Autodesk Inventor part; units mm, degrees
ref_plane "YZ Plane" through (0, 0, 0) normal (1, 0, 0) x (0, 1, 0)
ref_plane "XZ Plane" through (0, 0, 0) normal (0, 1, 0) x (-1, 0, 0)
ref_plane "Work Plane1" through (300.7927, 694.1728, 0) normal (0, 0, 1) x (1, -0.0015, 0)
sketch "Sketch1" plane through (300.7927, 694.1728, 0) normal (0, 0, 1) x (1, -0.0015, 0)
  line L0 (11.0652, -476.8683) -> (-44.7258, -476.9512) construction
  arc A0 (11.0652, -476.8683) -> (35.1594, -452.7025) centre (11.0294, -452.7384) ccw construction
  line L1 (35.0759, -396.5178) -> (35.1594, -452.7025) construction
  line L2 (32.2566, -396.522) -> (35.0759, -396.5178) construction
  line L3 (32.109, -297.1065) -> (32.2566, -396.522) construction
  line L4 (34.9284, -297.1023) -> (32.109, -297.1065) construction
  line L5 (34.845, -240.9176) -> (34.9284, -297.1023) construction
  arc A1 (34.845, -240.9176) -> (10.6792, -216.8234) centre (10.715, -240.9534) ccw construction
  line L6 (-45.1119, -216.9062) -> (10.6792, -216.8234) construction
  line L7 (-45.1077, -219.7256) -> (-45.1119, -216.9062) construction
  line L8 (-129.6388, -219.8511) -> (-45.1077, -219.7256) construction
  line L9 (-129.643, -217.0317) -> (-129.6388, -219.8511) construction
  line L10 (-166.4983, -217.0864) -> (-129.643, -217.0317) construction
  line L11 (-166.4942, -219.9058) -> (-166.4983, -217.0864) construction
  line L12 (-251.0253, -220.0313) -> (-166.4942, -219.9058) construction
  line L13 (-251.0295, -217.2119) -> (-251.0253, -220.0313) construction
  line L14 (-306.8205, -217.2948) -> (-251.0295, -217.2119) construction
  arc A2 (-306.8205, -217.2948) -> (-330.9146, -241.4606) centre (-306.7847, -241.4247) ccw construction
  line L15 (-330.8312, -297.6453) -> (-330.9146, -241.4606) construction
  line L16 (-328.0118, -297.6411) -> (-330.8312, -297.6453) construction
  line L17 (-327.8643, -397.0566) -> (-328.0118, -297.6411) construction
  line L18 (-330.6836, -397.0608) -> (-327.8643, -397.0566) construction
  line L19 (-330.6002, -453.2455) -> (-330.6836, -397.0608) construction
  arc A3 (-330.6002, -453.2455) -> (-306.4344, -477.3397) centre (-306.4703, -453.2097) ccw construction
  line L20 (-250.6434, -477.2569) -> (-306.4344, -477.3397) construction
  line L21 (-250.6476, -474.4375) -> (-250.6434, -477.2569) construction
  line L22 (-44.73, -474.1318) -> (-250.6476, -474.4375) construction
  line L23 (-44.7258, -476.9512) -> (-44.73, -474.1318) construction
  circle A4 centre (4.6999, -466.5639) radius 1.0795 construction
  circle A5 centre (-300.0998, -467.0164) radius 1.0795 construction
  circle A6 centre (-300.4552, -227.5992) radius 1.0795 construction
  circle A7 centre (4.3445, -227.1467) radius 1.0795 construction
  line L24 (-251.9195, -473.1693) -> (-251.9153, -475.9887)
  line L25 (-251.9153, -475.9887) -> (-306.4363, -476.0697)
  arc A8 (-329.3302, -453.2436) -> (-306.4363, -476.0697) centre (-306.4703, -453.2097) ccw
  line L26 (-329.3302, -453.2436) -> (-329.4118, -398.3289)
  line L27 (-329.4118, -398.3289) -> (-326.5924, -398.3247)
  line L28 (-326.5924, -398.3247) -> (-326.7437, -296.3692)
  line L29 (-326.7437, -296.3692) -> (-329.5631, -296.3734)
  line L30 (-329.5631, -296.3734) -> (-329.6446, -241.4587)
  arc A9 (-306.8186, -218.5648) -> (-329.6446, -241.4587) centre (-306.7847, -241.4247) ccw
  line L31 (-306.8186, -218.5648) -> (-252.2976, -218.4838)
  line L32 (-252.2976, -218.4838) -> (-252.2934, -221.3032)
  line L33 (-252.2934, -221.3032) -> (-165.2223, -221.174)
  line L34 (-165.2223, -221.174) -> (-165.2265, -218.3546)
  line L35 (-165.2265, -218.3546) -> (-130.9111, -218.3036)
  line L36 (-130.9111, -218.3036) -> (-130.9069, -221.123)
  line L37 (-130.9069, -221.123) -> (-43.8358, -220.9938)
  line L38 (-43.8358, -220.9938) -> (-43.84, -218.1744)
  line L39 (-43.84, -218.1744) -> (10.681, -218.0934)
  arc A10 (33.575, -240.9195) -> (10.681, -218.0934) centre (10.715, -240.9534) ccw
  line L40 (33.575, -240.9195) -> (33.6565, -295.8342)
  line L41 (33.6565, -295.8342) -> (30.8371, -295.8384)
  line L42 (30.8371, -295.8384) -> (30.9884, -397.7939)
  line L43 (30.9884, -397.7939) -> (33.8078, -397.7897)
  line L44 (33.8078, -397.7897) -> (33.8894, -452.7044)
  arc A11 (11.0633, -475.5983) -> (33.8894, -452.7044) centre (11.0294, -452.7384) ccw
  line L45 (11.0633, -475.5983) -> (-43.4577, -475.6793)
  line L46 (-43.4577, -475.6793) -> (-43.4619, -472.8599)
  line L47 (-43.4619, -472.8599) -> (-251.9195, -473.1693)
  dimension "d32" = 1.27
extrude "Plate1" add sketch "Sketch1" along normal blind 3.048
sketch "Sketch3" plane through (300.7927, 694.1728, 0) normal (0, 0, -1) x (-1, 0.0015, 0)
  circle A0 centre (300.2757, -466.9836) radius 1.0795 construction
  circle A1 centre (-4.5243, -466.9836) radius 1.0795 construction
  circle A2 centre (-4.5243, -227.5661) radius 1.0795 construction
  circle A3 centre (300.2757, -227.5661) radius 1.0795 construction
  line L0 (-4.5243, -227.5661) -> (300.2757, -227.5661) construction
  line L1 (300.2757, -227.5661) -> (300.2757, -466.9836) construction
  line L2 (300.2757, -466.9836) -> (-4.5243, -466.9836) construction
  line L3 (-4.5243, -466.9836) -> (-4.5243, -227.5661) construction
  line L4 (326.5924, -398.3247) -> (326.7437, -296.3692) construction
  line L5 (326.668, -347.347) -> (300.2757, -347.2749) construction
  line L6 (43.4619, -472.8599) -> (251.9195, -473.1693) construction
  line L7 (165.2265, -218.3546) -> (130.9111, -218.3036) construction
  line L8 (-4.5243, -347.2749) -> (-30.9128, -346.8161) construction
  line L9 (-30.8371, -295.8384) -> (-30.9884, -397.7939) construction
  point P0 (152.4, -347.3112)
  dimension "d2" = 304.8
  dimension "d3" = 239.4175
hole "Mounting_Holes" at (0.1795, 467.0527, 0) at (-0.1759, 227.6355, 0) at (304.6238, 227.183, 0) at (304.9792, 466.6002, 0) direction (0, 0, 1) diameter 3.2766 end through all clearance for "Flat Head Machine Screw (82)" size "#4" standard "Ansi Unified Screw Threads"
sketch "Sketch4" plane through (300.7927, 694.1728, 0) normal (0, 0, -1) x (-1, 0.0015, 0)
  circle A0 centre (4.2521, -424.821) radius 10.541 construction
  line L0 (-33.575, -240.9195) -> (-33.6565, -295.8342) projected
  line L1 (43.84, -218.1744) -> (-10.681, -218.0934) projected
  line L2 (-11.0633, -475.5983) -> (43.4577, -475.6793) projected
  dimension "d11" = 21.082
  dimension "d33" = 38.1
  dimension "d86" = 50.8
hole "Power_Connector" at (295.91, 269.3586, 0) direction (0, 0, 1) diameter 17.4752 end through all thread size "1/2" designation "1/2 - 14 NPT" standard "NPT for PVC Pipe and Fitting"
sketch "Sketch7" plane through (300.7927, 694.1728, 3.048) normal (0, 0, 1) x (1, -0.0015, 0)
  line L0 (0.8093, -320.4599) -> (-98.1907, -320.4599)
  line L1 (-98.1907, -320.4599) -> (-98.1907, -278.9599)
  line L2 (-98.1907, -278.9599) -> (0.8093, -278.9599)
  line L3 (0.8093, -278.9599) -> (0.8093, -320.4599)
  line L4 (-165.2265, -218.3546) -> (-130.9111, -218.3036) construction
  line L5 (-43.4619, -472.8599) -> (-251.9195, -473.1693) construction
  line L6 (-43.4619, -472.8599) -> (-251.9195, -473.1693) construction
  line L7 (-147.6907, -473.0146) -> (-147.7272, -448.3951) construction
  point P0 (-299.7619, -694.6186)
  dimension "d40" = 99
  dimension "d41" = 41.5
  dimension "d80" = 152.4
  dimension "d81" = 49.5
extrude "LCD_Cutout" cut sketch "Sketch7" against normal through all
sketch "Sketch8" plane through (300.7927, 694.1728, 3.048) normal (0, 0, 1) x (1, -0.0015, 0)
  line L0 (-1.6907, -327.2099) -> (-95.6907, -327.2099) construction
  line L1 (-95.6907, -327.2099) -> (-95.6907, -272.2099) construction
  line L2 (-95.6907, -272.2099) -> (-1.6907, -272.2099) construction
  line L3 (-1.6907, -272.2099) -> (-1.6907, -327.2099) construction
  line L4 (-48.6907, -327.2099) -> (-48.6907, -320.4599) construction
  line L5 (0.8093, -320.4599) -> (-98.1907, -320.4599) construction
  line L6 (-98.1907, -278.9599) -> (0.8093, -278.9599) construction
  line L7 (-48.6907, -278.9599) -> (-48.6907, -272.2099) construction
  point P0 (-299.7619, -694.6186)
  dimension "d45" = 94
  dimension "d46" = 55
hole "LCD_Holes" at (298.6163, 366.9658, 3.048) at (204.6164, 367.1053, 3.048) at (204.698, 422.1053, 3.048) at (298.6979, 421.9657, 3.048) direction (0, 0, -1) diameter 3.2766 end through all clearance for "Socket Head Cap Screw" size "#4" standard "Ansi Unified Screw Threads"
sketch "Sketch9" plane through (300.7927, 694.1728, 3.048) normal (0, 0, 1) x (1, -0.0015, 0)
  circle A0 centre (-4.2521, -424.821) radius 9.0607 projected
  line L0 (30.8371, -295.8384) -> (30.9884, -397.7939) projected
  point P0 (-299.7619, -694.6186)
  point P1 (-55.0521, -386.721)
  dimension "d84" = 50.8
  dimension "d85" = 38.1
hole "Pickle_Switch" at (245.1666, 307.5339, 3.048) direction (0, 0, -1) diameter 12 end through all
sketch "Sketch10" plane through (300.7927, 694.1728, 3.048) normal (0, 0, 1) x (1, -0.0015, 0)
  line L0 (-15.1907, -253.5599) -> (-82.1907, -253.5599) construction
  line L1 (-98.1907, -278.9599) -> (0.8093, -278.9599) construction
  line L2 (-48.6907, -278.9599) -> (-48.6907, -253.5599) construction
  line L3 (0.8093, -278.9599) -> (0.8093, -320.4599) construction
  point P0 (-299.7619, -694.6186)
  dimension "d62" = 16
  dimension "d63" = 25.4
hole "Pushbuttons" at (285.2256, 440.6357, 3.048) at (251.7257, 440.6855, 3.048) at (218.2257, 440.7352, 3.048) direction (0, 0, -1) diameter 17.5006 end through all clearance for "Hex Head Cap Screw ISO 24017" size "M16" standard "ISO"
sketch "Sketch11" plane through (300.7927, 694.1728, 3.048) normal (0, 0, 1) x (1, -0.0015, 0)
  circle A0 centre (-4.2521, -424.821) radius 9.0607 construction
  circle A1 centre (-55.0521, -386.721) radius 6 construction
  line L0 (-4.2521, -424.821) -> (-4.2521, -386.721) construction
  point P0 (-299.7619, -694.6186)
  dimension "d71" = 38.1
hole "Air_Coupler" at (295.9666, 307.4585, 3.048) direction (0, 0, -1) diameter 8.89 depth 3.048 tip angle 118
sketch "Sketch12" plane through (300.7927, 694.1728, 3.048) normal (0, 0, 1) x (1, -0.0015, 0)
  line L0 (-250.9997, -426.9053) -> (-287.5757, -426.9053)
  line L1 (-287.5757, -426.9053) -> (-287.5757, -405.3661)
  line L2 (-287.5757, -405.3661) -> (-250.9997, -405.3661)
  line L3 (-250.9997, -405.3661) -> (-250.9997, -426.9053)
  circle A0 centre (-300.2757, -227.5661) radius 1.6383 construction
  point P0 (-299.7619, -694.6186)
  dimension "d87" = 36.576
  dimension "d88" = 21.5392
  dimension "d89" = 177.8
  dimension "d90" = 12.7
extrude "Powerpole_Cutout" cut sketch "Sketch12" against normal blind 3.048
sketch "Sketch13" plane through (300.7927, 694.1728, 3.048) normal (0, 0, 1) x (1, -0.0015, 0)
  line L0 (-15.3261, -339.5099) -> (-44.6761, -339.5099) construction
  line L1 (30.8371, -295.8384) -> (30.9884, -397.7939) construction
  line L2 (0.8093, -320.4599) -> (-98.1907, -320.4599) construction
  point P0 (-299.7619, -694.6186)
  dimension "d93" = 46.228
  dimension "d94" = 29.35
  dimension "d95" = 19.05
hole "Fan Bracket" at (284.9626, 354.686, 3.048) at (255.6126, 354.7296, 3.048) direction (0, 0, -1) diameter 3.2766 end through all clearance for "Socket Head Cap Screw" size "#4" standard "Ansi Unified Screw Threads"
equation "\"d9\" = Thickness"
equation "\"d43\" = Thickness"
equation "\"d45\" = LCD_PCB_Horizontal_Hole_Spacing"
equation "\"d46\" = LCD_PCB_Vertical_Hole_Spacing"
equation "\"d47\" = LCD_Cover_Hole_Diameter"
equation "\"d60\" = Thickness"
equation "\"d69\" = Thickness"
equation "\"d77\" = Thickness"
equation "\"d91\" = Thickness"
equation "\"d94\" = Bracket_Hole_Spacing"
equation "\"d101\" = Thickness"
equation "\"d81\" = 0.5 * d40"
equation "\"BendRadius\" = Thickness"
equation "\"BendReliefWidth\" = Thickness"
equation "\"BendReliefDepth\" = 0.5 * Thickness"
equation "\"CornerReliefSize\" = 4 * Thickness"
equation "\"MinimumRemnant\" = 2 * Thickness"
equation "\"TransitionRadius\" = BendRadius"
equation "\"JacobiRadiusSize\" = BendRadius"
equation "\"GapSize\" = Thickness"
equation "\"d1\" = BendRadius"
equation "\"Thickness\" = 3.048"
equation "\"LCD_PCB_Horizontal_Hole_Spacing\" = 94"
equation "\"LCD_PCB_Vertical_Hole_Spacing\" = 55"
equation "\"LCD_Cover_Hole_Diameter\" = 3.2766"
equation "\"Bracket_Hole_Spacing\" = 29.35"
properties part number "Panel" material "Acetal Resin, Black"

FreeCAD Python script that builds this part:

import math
import FreeCAD as App
import Part
import Sketcher

V = App.Vector
Q = App.Units.Quantity

doc = App.newDocument("Part")
body = doc.addObject("PartDesign::Body", "Body")

sketch1 = body.newObject("Sketcher::SketchObject", "Sketch")
sketch1.AttachmentSupport = (doc.getObject("XY_Plane"), [""])
sketch1.MapMode = "FlatFace"
sketch1.addGeometry([
    Part.LineSegment(V(48.163701, 218.562508, 0), V(48.16373, 221.381911, 0)),
    Part.LineSegment(V(48.16373, 221.381911, 0), V(256.62156, 221.378625, 0)),
    Part.LineSegment(V(256.62156, 221.378625, 0), V(256.621531, 218.559222, 0)),
    Part.LineSegment(V(256.621531, 218.559222, 0), V(311.142591, 218.55844, 0)),
    Part.ArcOfCircle(Part.Circle(V(311.142981, 241.418365, 0), V(0, 0, 1), 22.859925), math.radians(-90.000977), math.radians(-0.000727)),
    Part.LineSegment(V(334.003006, 241.418075, 0), V(334.003778, 296.332836, 0)),
    Part.LineSegment(V(334.003778, 296.332836, 0), V(331.184375, 296.332865, 0)),
    Part.LineSegment(V(331.184375, 296.332865, 0), V(331.186008, 398.288477, 0)),
    Part.LineSegment(V(331.186008, 398.288477, 0), V(334.005411, 398.288448, 0)),
    Part.LineSegment(V(334.005411, 398.288448, 0), V(334.006283, 453.203209, 0)),
    Part.ArcOfCircle(Part.Circle(V(311.146258, 453.203599, 0), V(0, 0, 1), 22.860025), math.radians(-0.000977), math.radians(89.999273)),
    Part.LineSegment(V(311.146548, 476.063624, 0), V(256.625488, 476.064405, 0)),
    Part.LineSegment(V(256.625488, 476.064405, 0), V(256.625459, 473.245002, 0)),
    Part.LineSegment(V(256.625459, 473.245002, 0), V(169.554263, 473.246409, 0)),
    Part.LineSegment(V(169.554263, 473.246409, 0), V(169.554292, 476.065812, 0)),
    Part.LineSegment(V(169.554292, 476.065812, 0), V(135.238854, 476.066285, 0)),
    Part.LineSegment(V(135.238854, 476.066285, 0), V(135.238825, 473.246882, 0)),
    Part.LineSegment(V(135.238825, 473.246882, 0), V(48.167629, 473.248289, 0)),
    Part.LineSegment(V(48.167629, 473.248289, 0), V(48.167659, 476.067692, 0)),
    Part.LineSegment(V(48.167659, 476.067692, 0), V(-6.353402, 476.068473, 0)),
    Part.ArcOfCircle(Part.Circle(V(-6.353791, 453.208548, 0), V(0, 0, 1), 22.859925), math.radians(89.999023), math.radians(179.999274)),
    Part.LineSegment(V(-29.213717, 453.208838, 0), V(-29.214589, 398.294077, 0)),
    Part.LineSegment(V(-29.214589, 398.294077, 0), V(-26.395186, 398.294048, 0)),
    Part.LineSegment(V(-26.395186, 398.294048, 0), V(-26.396819, 296.338436, 0)),
    Part.LineSegment(V(-26.396819, 296.338436, 0), V(-29.216222, 296.338465, 0)),
    Part.LineSegment(V(-29.216222, 296.338465, 0), V(-29.216994, 241.423705, 0)),
    Part.ArcOfCircle(Part.Circle(V(-6.357069, 241.423315, 0), V(0, 0, 1), 22.859925), math.radians(179.999023), math.radians(269.999273)),
    Part.LineSegment(V(-6.357359, 218.563289, 0), V(48.163701, 218.562508, 0)),
], False)
sketch1.addConstraint([
    Sketcher.Constraint("Coincident", 0, 2, 1, 1),
    Sketcher.Constraint("Coincident", 1, 2, 2, 1),
    Sketcher.Constraint("Coincident", 2, 2, 3, 1),
    Sketcher.Constraint("Tangent", 3, 2, 4, 1),
    Sketcher.Constraint("Tangent", 4, 2, 5, 1),
    Sketcher.Constraint("Coincident", 5, 2, 6, 1),
    Sketcher.Constraint("Coincident", 6, 2, 7, 1),
    Sketcher.Constraint("Coincident", 7, 2, 8, 1),
    Sketcher.Constraint("Coincident", 8, 2, 9, 1),
    Sketcher.Constraint("Tangent", 9, 2, 10, 1),
    Sketcher.Constraint("Tangent", 10, 2, 11, 1),
    Sketcher.Constraint("Coincident", 11, 2, 12, 1),
    Sketcher.Constraint("Coincident", 12, 2, 13, 1),
    Sketcher.Constraint("Coincident", 13, 2, 14, 1),
    Sketcher.Constraint("Coincident", 14, 2, 15, 1),
    Sketcher.Constraint("Coincident", 15, 2, 16, 1),
    Sketcher.Constraint("Coincident", 16, 2, 17, 1),
    Sketcher.Constraint("Coincident", 17, 2, 18, 1),
    Sketcher.Constraint("Coincident", 18, 2, 19, 1),
    Sketcher.Constraint("Tangent", 19, 2, 20, 1),
    Sketcher.Constraint("Tangent", 20, 2, 21, 1),
    Sketcher.Constraint("Coincident", 21, 2, 22, 1),
    Sketcher.Constraint("Coincident", 22, 2, 23, 1),
    Sketcher.Constraint("Coincident", 23, 2, 24, 1),
    Sketcher.Constraint("Coincident", 24, 2, 25, 1),
    Sketcher.Constraint("Tangent", 25, 2, 26, 1),
    Sketcher.Constraint("Tangent", 26, 2, 27, 1),
    Sketcher.Constraint("Coincident", 27, 2, 0, 1),
    Sketcher.Constraint("Vertical", 0),
    Sketcher.Constraint("Vertical", 2),
    Sketcher.Constraint("Horizontal", 6),
    Sketcher.Constraint("Horizontal", 8),
    Sketcher.Constraint("Vertical", 12),
    Sketcher.Constraint("Vertical", 14),
    Sketcher.Constraint("Vertical", 16),
    Sketcher.Constraint("Vertical", 18),
    Sketcher.Constraint("Horizontal", 22),
    Sketcher.Constraint("Horizontal", 24),
    Sketcher.Constraint("Equal", 4, 10),
    Sketcher.Constraint("Equal", 10, 20),
    Sketcher.Constraint("Equal", 20, 26),
    Sketcher.Constraint("Parallel", 1, 3),
    Sketcher.Constraint("Perpendicular", 3, 5),
    Sketcher.Constraint("Parallel", 5, 7),
    Sketcher.Constraint("Parallel", 7, 9),
    Sketcher.Constraint("Perpendicular", 9, 11),
    Sketcher.Constraint("Parallel", 11, 13),
    Sketcher.Constraint("Parallel", 13, 15),
    Sketcher.Constraint("Parallel", 15, 17),
    Sketcher.Constraint("Parallel", 17, 19),
    Sketcher.Constraint("Perpendicular", 19, 21),
    Sketcher.Constraint("Parallel", 21, 23),
    Sketcher.Constraint("Parallel", 23, 25),
    Sketcher.Constraint("Perpendicular", 25, 27),
    Sketcher.Constraint("Equal", 6, 8),
    Sketcher.Constraint("Equal", 8, 22),
    Sketcher.Constraint("Equal", 22, 24),
    Sketcher.Constraint("Equal", 24, 0),
    Sketcher.Constraint("Equal", 0, 2),
    Sketcher.Constraint("Equal", 2, 12),
    Sketcher.Constraint("Equal", 12, 14),
    Sketcher.Constraint("Equal", 14, 16),
    Sketcher.Constraint("Equal", 16, 18),
    Sketcher.Constraint("Equal", 5, 9),
    Sketcher.Constraint("Equal", 3, 11),
    Sketcher.Constraint("Equal", 13, 17),
    Sketcher.Constraint("Equal", 11, 19),
    Sketcher.Constraint("Equal", 9, 21),
    Sketcher.Constraint("Equal", 7, 23),
    Sketcher.Constraint("Equal", 19, 27),
    Sketcher.Constraint("Radius", 4, Q("0.9 in")),
    Sketcher.Constraint("Angle", 1, Q("-0.001 deg")),
    Sketcher.Constraint("DistanceX", 20, 3, 10, 3, Q("12.5 in")),
    Sketcher.Constraint("DistanceX", 6, 2, 6, 1, Q("0.111 in")),
    Sketcher.Constraint("Distance", 1, Q("8.207 in")),
    Sketcher.Constraint("Distance", 5, Q("2.162 in")),
    Sketcher.Constraint("Distance", 7, Q("4.014 in")),
    Sketcher.Constraint("Distance", 13, Q("3.428 in")),
    Sketcher.Constraint("DistanceX", -1, 1, 0, 2, Q("1.8962 in")),
    Sketcher.Constraint("DistanceY", -1, 1, 1, 2, Q("8.7157 in")),
])
pad1 = body.newObject("PartDesign::Pad", "Pad")
pad1.Profile = sketch1
pad1.Length = Q("0.12 in")

sketch2 = body.newObject("Sketcher::SketchObject", "Sketch001")
sketch2.AttachmentSupport = (doc.getObject("XY_Plane"), [""])
sketch2.MapMode = "FlatFace"
sketch2.addGeometry([
    Part.Circle(V(0.1795, 467.0527, 0), V(0, 0, 1), 1.6383),
    Part.Circle(V(-0.1759, 227.6355, 0), V(0, 0, 1), 1.6383),
    Part.Circle(V(304.6238, 227.183, 0), V(0, 0, 1), 1.6383),
    Part.Circle(V(304.9792, 466.6002, 0), V(0, 0, 1), 1.6383),
], False)
sketch2.addConstraint([
    Sketcher.Constraint("Equal", 0, 1),
    Sketcher.Constraint("Equal", 1, 2),
    Sketcher.Constraint("Equal", 2, 3),
    Sketcher.Constraint("Diameter", 0, Q("0.129 in")),
    Sketcher.Constraint("DistanceX", 1, 3, 2, 3, Q("12 in")),
    Sketcher.Constraint("DistanceX", 0, 3, 3, 3, Q("12 in")),
    Sketcher.Constraint("DistanceX", 1, 3, 0, 3, Q("0.014 in")),
    Sketcher.Constraint("DistanceY", -1, 1, 0, 3, Q("18.3879 in")),
    Sketcher.Constraint("DistanceY", 2, 3, 0, 3, Q("9.4437 in")),
    Sketcher.Constraint("DistanceX", -1, 1, 0, 3, Q("0.1795 mm")),
    Sketcher.Constraint("DistanceY", -1, 1, 1, 3, Q("227.6355 mm")),
    Sketcher.Constraint("DistanceY", -1, 1, 3, 3, Q("466.6002 mm")),
])
doc.recompute()
hole = body.newObject("PartDesign::Hole", "Hole")
hole.Profile = sketch2
hole.ThreadType = "None"
hole.Diameter = Q("0.129 in")
hole.DepthType = "ThroughAll"
hole.Reversed = True

sketch3 = body.newObject("Sketcher::SketchObject", "Sketch002")
sketch3.AttachmentSupport = (doc.getObject("XY_Plane"), [""])
sketch3.MapMode = "FlatFace"
sketch3.addGeometry(Part.Circle(V(295.91, 269.3586, 0), V(0, 0, 1), 8.7376), False)
sketch3.addConstraint([
    Sketcher.Constraint("Diameter", 0, Q("0.688 in")),
    Sketcher.Constraint("DistanceX", -1, 1, 0, 3, Q("11.65 in")),
    Sketcher.Constraint("DistanceY", -1, 1, 0, 3, Q("269.3586 mm")),
])
doc.recompute()
hole2 = body.newObject("PartDesign::Hole", "Hole001")
hole2.Profile = sketch3
hole2.ThreadType = "None"
hole2.Diameter = Q("0.688 in")
hole2.DepthType = "ThroughAll"
hole2.Reversed = True

sketch4 = body.newObject("Sketcher::SketchObject", "Sketch003")
sketch4.AttachmentSupport = (doc.getObject("XY_Plane"), [""])
sketch4.MapMode = "FlatFace"
sketch4.AttachmentOffset = App.Placement(V(0, 0, 0.12 * 25.4), App.Rotation())
sketch4.addGeometry([
    Part.LineSegment(V(202.121421, 373.860546, 0), V(301.12131, 373.712047, 0)),
    Part.LineSegment(V(301.12131, 373.712047, 0), V(301.18356, 415.212, 0)),
    Part.LineSegment(V(301.18356, 415.212, 0), V(202.183671, 415.3605, 0)),
    Part.LineSegment(V(202.183671, 415.3605, 0), V(202.121421, 373.860546, 0)),
], False)
sketch4.addConstraint([
    Sketcher.Constraint("Coincident", 0, 2, 1, 1),
    Sketcher.Constraint("Coincident", 1, 2, 2, 1),
    Sketcher.Constraint("Coincident", 2, 2, 3, 1),
    Sketcher.Constraint("Coincident", 3, 2, 0, 1),
    Sketcher.Constraint("Perpendicular", 0, 1),
    Sketcher.Constraint("Perpendicular", 1, 2),
    Sketcher.Constraint("Perpendicular", 2, 3),
    Sketcher.Constraint("Distance", 0, Q("99 mm")),
    Sketcher.Constraint("Distance", 1, Q("41.5 mm")),
    Sketcher.Constraint("DistanceY", 3, 2, 1, 2, Q("1.628 in")),
    Sketcher.Constraint("DistanceX", -1, 1, 0, 2, Q("301.1213 mm")),
    Sketcher.Constraint("DistanceY", -1, 1, 0, 2, Q("373.712 mm")),
])
pocket1 = body.newObject("PartDesign::Pocket", "Pocket")
pocket1.Profile = sketch4
pocket1.Type = "ThroughAll"

sketch5 = body.newObject("Sketcher::SketchObject", "Sketch004")
sketch5.AttachmentSupport = (doc.getObject("XY_Plane"), [""])
sketch5.MapMode = "FlatFace"
sketch5.AttachmentOffset = App.Placement(V(0, 0, 0.12 * 25.4), App.Rotation())
sketch5.addGeometry([
    Part.Circle(V(298.6163, 366.9658, 0), V(0, 0, 1), 1.6383),
    Part.Circle(V(204.6164, 367.1053, 0), V(0, 0, 1), 1.6383),
    Part.Circle(V(204.698, 422.1053, 0), V(0, 0, 1), 1.6383),
    Part.Circle(V(298.6979, 421.9657, 0), V(0, 0, 1), 1.6383),
], False)
sketch5.addConstraint([
    Sketcher.Constraint("Equal", 0, 1),
    Sketcher.Constraint("Equal", 1, 2),
    Sketcher.Constraint("Equal", 2, 3),
    Sketcher.Constraint("Diameter", 0, Q("0.129 in")),
    Sketcher.Constraint("DistanceX", 1, 3, 3, 3, Q("3.704 in")),
    Sketcher.Constraint("DistanceY", 0, 3, 1, 3, Q("0.0055 in")),
    Sketcher.Constraint("DistanceY", 3, 3, 2, 3, Q("0.0055 in")),
    Sketcher.Constraint("DistanceX", -1, 1, 0, 3, Q("298.6163 mm")),
    Sketcher.Constraint("DistanceY", -1, 1, 0, 3, Q("366.9658 mm")),
    Sketcher.Constraint("DistanceX", -1, 1, 1, 3, Q("204.6164 mm")),
    Sketcher.Constraint("DistanceX", -1, 1, 2, 3, Q("204.698 mm")),
    Sketcher.Constraint("DistanceY", -1, 1, 2, 3, Q("422.1053 mm")),
])
doc.recompute()
hole3 = body.newObject("PartDesign::Hole", "Hole002")
hole3.Profile = sketch5
hole3.ThreadType = "None"
hole3.Diameter = Q("0.129 in")
hole3.DepthType = "ThroughAll"

sketch6 = body.newObject("Sketcher::SketchObject", "Sketch005")
sketch6.AttachmentSupport = (doc.getObject("XY_Plane"), [""])
sketch6.MapMode = "FlatFace"
sketch6.AttachmentOffset = App.Placement(V(0, 0, 0.12 * 25.4), App.Rotation())
sketch6.addGeometry(Part.Circle(V(245.1666, 307.5339, 0), V(0, 0, 1), 6), False)
sketch6.addConstraint([
    Sketcher.Constraint("Diameter", 0, Q("12 mm")),
    Sketcher.Constraint("DistanceX", -1, 1, 0, 3, Q("245.1666 mm")),
    Sketcher.Constraint("DistanceY", -1, 1, 0, 3, Q("307.534 mm")),
])
doc.recompute()
hole4 = body.newObject("PartDesign::Hole", "Hole003")
hole4.Profile = sketch6
hole4.ThreadType = "None"
hole4.Diameter = 12
hole4.DepthType = "ThroughAll"

sketch7 = body.newObject("Sketcher::SketchObject", "Sketch006")
sketch7.AttachmentSupport = (doc.getObject("XY_Plane"), [""])
sketch7.MapMode = "FlatFace"
sketch7.AttachmentOffset = App.Placement(V(0, 0, 0.12 * 25.4), App.Rotation())
sketch7.addGeometry([
    Part.Circle(V(285.2256, 440.6357, 0), V(0, 0, 1), 8.7503),
    Part.Circle(V(251.7257, 440.6855, 0), V(0, 0, 1), 8.7503),
    Part.Circle(V(218.2257, 440.7352, 0), V(0, 0, 1), 8.7503),
], False)
sketch7.addConstraint([
    Sketcher.Constraint("Equal", 0, 1),
    Sketcher.Constraint("Equal", 1, 2),
    Sketcher.Constraint("Diameter", 0, Q("0.689 in")),
    Sketcher.Constraint("DistanceX", 1, 3, 0, 3, Q("1.3189 in")),
    Sketcher.Constraint("DistanceX", 2, 3, 1, 3, Q("1.3189 in")),
    Sketcher.Constraint("DistanceX", -1, 1, 0, 3, Q("285.2256 mm")),
    Sketcher.Constraint("DistanceY", -1, 1, 0, 3, Q("440.6357 mm")),
    Sketcher.Constraint("DistanceY", -1, 1, 1, 3, Q("440.6855 mm")),
    Sketcher.Constraint("DistanceY", -1, 1, 2, 3, Q("440.7352 mm")),
])
doc.recompute()
hole5 = body.newObject("PartDesign::Hole", "Hole004")
hole5.Profile = sketch7
hole5.ThreadType = "None"
hole5.Diameter = Q("0.689 in")
hole5.DepthType = "ThroughAll"

sketch8 = body.newObject("Sketcher::SketchObject", "Sketch007")
sketch8.AttachmentSupport = (doc.getObject("XY_Plane"), [""])
sketch8.MapMode = "FlatFace"
sketch8.AttachmentOffset = App.Placement(V(0, 0, 0.12 * 25.4), App.Rotation())
sketch8.addGeometry(Part.Circle(V(295.9666, 307.4585, 0), V(0, 0, 1), 4.445), False)
sketch8.addConstraint([
    Sketcher.Constraint("Diameter", 0, Q("0.35 in")),
    Sketcher.Constraint("DistanceX", -1, 1, 0, 3, Q("295.9666 mm")),
    Sketcher.Constraint("DistanceY", -1, 1, 0, 3, Q("307.4585 mm")),
])
doc.recompute()
hole6 = body.newObject("PartDesign::Hole", "Hole005")
hole6.Profile = sketch8
hole6.ThreadType = "None"
hole6.Diameter = Q("0.35 in")
hole6.DepthType = "Dimension"
hole6.Depth = Q("0.12 in")
hole6.DrillPoint = "Angled"
hole6.DrillPointAngle = 118

sketch9 = body.newObject("Sketcher::SketchObject", "Sketch008")
sketch9.AttachmentSupport = (doc.getObject("XY_Plane"), [""])
sketch9.MapMode = "FlatFace"
sketch9.AttachmentOffset = App.Placement(V(0, 0, 0.12 * 25.4), App.Rotation())
sketch9.addGeometry([
    Part.LineSegment(V(12.576966, 267.699343, 0), V(49.152925, 267.644479, 0)),
    Part.LineSegment(V(49.152925, 267.644479, 0), V(49.185234, 289.183655, 0)),
    Part.LineSegment(V(49.185234, 289.183655, 0), V(12.609275, 289.238519, 0)),
    Part.LineSegment(V(12.609275, 289.238519, 0), V(12.576966, 267.699343, 0)),
], False)
sketch9.addConstraint([
    Sketcher.Constraint("Coincident", 0, 2, 1, 1),
    Sketcher.Constraint("Coincident", 1, 2, 2, 1),
    Sketcher.Constraint("Coincident", 2, 2, 3, 1),
    Sketcher.Constraint("Coincident", 3, 2, 0, 1),
    Sketcher.Constraint("Perpendicular", 0, 1),
    Sketcher.Constraint("Perpendicular", 1, 2),
    Sketcher.Constraint("Perpendicular", 2, 3),
    Sketcher.Constraint("Distance", 0, Q("1.44 in")),
    Sketcher.Constraint("Distance", 1, Q("0.848 in")),
    Sketcher.Constraint("DistanceX", -1, 1, 0, 2, Q("49.153 mm")),
    Sketcher.Constraint("DistanceY", -1, 1, 0, 2, Q("267.6445 mm")),
    Sketcher.Constraint("DistanceX", -1, 1, 1, 2, Q("49.1852 mm")),
])
pocket2 = body.newObject("PartDesign::Pocket", "Pocket001")
pocket2.Profile = sketch9
pocket2.Length = Q("0.12 in")

sketch10 = body.newObject("Sketcher::SketchObject", "Sketch009")
sketch10.AttachmentSupport = (doc.getObject("XY_Plane"), [""])
sketch10.MapMode = "FlatFace"
sketch10.AttachmentOffset = App.Placement(V(0, 0, 0.12 * 25.4), App.Rotation())
sketch10.addGeometry([
    Part.Circle(V(284.9626, 354.686, 0), V(0, 0, 1), 1.6383),
    Part.Circle(V(255.6126, 354.7296, 0), V(0, 0, 1), 1.6383),
], False)
sketch10.addConstraint([
    Sketcher.Constraint("Equal", 0, 1),
    Sketcher.Constraint("Diameter", 0, Q("0.129 in")),
    Sketcher.Constraint("DistanceX", -1, 1, 0, 3, Q("11.219 in")),
    Sketcher.Constraint("DistanceX", -1, 1, 1, 3, Q("10.0635 in")),
    Sketcher.Constraint("DistanceY", -1, 1, 0, 3, Q("354.686 mm")),
    Sketcher.Constraint("DistanceY", -1, 1, 1, 3, Q("354.7296 mm")),
])
doc.recompute()
hole7 = body.newObject("PartDesign::Hole", "Hole006")
hole7.Profile = sketch10
hole7.ThreadType = "None"
hole7.Diameter = Q("0.129 in")
hole7.DepthType = "ThroughAll"

doc.recompute()
